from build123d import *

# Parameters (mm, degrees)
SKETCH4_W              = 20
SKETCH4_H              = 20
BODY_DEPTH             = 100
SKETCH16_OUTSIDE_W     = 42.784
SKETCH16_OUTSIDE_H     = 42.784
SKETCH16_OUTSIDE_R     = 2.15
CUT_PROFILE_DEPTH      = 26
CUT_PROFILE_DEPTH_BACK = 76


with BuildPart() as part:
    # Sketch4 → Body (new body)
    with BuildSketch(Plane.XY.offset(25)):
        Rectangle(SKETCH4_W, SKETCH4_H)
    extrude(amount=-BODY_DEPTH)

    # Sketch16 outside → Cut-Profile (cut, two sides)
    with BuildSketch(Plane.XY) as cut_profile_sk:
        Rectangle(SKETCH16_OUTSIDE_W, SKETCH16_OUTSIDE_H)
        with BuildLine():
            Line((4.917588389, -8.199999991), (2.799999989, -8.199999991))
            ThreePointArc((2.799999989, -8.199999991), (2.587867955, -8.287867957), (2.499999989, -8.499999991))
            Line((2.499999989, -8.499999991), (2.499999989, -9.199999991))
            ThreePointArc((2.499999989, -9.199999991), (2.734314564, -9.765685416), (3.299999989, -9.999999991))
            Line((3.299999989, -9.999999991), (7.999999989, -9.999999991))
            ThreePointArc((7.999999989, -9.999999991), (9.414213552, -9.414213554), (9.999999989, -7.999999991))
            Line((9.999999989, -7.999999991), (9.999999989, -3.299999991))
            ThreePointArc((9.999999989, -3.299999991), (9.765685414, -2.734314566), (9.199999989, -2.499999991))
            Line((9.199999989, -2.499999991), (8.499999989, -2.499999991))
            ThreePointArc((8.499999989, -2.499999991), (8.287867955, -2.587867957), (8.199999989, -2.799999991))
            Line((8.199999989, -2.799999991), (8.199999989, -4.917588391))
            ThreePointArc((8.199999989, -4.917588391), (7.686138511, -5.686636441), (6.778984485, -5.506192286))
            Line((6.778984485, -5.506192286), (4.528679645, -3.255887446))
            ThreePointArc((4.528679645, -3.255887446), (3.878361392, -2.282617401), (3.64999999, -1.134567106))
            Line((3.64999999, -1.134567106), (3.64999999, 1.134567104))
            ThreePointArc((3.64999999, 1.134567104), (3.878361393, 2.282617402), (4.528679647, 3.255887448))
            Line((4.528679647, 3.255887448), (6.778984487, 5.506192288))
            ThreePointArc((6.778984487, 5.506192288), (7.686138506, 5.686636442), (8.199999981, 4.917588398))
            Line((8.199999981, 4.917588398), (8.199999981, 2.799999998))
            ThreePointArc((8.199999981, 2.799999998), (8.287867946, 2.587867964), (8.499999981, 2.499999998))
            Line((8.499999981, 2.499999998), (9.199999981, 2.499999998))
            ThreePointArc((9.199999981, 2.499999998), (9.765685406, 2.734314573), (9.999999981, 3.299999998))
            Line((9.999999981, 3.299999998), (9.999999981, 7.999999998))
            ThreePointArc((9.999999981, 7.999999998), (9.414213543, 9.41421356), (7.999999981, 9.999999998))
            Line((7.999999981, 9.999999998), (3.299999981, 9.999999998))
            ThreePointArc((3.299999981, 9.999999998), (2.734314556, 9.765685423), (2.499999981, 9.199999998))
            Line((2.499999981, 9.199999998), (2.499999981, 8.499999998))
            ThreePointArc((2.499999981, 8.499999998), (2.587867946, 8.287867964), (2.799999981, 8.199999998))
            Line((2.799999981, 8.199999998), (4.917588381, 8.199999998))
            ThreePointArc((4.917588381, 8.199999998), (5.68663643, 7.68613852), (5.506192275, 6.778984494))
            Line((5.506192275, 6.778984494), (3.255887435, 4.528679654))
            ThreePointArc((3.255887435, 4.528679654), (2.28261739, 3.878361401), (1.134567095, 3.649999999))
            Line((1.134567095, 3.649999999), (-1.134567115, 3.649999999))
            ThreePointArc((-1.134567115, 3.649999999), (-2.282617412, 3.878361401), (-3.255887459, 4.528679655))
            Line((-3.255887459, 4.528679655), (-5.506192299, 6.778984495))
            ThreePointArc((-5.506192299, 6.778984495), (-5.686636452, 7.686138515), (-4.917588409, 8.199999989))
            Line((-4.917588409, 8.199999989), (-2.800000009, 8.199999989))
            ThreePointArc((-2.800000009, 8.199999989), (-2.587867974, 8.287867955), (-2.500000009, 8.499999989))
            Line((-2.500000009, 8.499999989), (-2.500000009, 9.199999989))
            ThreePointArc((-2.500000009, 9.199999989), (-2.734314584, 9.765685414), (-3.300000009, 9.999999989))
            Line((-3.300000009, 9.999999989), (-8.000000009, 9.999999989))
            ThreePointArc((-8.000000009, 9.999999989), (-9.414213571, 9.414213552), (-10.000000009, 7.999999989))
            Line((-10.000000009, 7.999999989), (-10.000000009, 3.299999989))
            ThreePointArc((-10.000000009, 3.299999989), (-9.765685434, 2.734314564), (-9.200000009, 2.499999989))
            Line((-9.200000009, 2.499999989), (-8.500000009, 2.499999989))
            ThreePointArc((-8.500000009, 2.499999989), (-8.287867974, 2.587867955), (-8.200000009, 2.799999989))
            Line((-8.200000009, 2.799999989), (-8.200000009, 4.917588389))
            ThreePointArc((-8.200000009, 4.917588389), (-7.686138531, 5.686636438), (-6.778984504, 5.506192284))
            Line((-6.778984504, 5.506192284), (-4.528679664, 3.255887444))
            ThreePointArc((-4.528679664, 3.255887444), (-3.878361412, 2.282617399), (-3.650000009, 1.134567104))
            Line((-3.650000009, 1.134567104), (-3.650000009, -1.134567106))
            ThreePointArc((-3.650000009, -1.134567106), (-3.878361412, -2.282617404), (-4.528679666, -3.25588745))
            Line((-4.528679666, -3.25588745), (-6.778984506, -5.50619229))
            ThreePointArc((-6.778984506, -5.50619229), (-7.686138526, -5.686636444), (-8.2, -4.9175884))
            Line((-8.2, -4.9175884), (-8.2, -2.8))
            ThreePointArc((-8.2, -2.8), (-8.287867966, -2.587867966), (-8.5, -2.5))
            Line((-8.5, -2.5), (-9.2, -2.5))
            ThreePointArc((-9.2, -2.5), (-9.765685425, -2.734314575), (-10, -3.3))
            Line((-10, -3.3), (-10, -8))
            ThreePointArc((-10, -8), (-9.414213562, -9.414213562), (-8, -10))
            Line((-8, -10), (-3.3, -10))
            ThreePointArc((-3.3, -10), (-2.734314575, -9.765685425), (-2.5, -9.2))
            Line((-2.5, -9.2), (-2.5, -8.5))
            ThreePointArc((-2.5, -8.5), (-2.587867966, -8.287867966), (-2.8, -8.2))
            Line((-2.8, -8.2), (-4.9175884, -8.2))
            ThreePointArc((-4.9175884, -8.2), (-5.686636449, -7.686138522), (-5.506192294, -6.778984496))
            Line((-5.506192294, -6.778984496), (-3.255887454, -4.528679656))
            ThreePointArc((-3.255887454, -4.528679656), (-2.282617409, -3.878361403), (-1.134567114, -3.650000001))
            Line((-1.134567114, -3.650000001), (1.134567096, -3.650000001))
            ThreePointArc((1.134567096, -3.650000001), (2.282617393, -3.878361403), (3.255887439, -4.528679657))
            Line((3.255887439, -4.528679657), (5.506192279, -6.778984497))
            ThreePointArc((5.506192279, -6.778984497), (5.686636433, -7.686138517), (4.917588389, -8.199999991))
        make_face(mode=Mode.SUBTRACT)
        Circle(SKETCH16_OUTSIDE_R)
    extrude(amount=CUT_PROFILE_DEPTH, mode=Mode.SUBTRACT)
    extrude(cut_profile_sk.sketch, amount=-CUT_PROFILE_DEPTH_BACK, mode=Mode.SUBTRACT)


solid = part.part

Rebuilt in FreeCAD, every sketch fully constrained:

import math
import FreeCAD as App
import Part
import Sketcher
Q = App.Units.Quantity

doc = App.newDocument("Part")
body = doc.addObject("PartDesign::Body", "Body")

# Sketch on XY plane
sketch1 = body.newObject("Sketcher::SketchObject", "Sketch")
sketch1.AttachmentSupport = (doc.getObject("XY_Plane"), [""])
sketch1.MapMode = "FlatFace"
sketch1.AttachmentOffset = App.Placement(App.Vector(0, 0, 25), App.Rotation())
sketch1.addGeometry(Part.LineSegment(App.Vector(-10, 10, 0), App.Vector(-10, -10, 0)), False)
sketch1.addGeometry(Part.LineSegment(App.Vector(-10, -10, 0), App.Vector(10, -10, 0)), False)
sketch1.addGeometry(Part.LineSegment(App.Vector(10, -10, 0), App.Vector(10, 10, 0)), False)
sketch1.addGeometry(Part.LineSegment(App.Vector(10, 10, 0), App.Vector(-10, 10, 0)), False)
sketch1.addConstraint(Sketcher.Constraint("Coincident", 0, 2, 1, 1))
sketch1.addConstraint(Sketcher.Constraint("Coincident", 1, 2, 2, 1))
sketch1.addConstraint(Sketcher.Constraint("Coincident", 2, 2, 3, 1))
sketch1.addConstraint(Sketcher.Constraint("Coincident", 3, 2, 0, 1))
sketch1.addConstraint(Sketcher.Constraint("Vertical", 0))
sketch1.addConstraint(Sketcher.Constraint("Horizontal", 1))
sketch1.addConstraint(Sketcher.Constraint("Vertical", 2))
sketch1.addConstraint(Sketcher.Constraint("Horizontal", 3))
sketch1.addConstraint(Sketcher.Constraint("Symmetric", 0, 2, 2, 2, -1, 1))
sketch1.addConstraint(Sketcher.Constraint("Equal", 3, 0))
sketch1.addConstraint(Sketcher.Constraint("DistanceX", 1, 1, 1, 2, Q("20 mm")))
pad1 = body.newObject("PartDesign::Pad", "Pad")
pad1.Profile = sketch1
pad1.Length = 100
pad1.Reversed = True

# Sketch on XY plane
sketch2 = body.newObject("Sketcher::SketchObject", "Sketch001")
sketch2.AttachmentSupport = (doc.getObject("XY_Plane"), [""])
sketch2.MapMode = "FlatFace"
sketch2.addGeometry(Part.LineSegment(App.Vector(-21.39, 21.39, 0), App.Vector(-21.39, -21.39, 0)), False)
sketch2.addGeometry(Part.LineSegment(App.Vector(-21.39, -21.39, 0), App.Vector(21.39, -21.39, 0)), False)
sketch2.addGeometry(Part.LineSegment(App.Vector(21.39, -21.39, 0), App.Vector(21.39, 21.39, 0)), False)
sketch2.addGeometry(Part.LineSegment(App.Vector(21.39, 21.39, 0), App.Vector(-21.39, 21.39, 0)), False)
sketch2.addGeometry(Part.LineSegment(App.Vector(2.8, -8.2, 0), App.Vector(4.92, -8.2, 0)), False)
sketch2.addGeometry(Part.ArcOfCircle(Part.Circle(App.Vector(4.92, -7.37, 0), App.Vector(0, 0, 1), 0.83), math.radians(-90), math.radians(45)), False)
sketch2.addGeometry(Part.LineSegment(App.Vector(5.51, -6.78, 0), App.Vector(3.26, -4.53, 0)), False)
sketch2.addGeometry(Part.ArcOfCircle(Part.Circle(App.Vector(1.13, -6.65, 0), App.Vector(0, 0, 1), 3), math.radians(45), math.radians(90)), False)
sketch2.addGeometry(Part.LineSegment(App.Vector(1.13, -3.65, 0), App.Vector(-1.13, -3.65, 0)), False)
sketch2.addGeometry(Part.ArcOfCircle(Part.Circle(App.Vector(-1.13, -6.65, 0), App.Vector(0, 0, 1), 3), math.radians(90), math.radians(135)), False)
sketch2.addGeometry(Part.LineSegment(App.Vector(-3.26, -4.53, 0), App.Vector(-5.51, -6.78, 0)), False)
sketch2.addGeometry(Part.ArcOfCircle(Part.Circle(App.Vector(-4.92, -7.37, 0), App.Vector(0, 0, 1), 0.83), math.radians(135), math.radians(270)), False)
sketch2.addGeometry(Part.LineSegment(App.Vector(-4.92, -8.2, 0), App.Vector(-2.8, -8.2, 0)), False)
sketch2.addGeometry(Part.ArcOfCircle(Part.Circle(App.Vector(-2.8, -8.5, 0), App.Vector(0, 0, 1), 0.3), math.radians(0), math.radians(90)), False)
sketch2.addGeometry(Part.LineSegment(App.Vector(-2.5, -8.5, 0), App.Vector(-2.5, -9.2, 0)), False)
sketch2.addGeometry(Part.ArcOfCircle(Part.Circle(App.Vector(-3.3, -9.2, 0), App.Vector(0, 0, 1), 0.8), math.radians(-90), math.radians(0)), False)
sketch2.addGeometry(Part.LineSegment(App.Vector(-3.3, -10, 0), App.Vector(-8, -10, 0)), False)
sketch2.addGeometry(Part.ArcOfCircle(Part.Circle(App.Vector(-8, -8, 0), App.Vector(0, 0, 1), 2), math.radians(-180), math.radians(-90)), False)
sketch2.addGeometry(Part.LineSegment(App.Vector(-10, -8, 0), App.Vector(-10, -3.3, 0)), False)
sketch2.addGeometry(Part.ArcOfCircle(Part.Circle(App.Vector(-9.2, -3.3, 0), App.Vector(0, 0, 1), 0.8), math.radians(90), math.radians(180)), False)
sketch2.addGeometry(Part.LineSegment(App.Vector(-9.2, -2.5, 0), App.Vector(-8.5, -2.5, 0)), False)
sketch2.addGeometry(Part.ArcOfCircle(Part.Circle(App.Vector(-8.5, -2.8, 0), App.Vector(0, 0, 1), 0.3), math.radians(0), math.radians(90)), False)
sketch2.addGeometry(Part.LineSegment(App.Vector(-8.2, -2.8, 0), App.Vector(-8.2, -4.92, 0)), False)
sketch2.addGeometry(Part.ArcOfCircle(Part.Circle(App.Vector(-7.37, -4.92, 0), App.Vector(0, 0, 1), 0.83), math.radians(180), math.radians(315)), False)
sketch2.addGeometry(Part.LineSegment(App.Vector(-6.78, -5.51, 0), App.Vector(-4.53, -3.26, 0)), False)
sketch2.addGeometry(Part.ArcOfCircle(Part.Circle(App.Vector(-6.65, -1.13, 0), App.Vector(0, 0, 1), 3), math.radians(-45), math.radians(0)), False)
sketch2.addGeometry(Part.LineSegment(App.Vector(-3.65, -1.13, 0), App.Vector(-3.65, 1.13, 0)), False)
sketch2.addGeometry(Part.ArcOfCircle(Part.Circle(App.Vector(-6.65, 1.13, 0), App.Vector(0, 0, 1), 3), math.radians(0), math.radians(45)), False)
sketch2.addGeometry(Part.LineSegment(App.Vector(-4.53, 3.26, 0), App.Vector(-6.78, 5.51, 0)), False)
sketch2.addGeometry(Part.ArcOfCircle(Part.Circle(App.Vector(-7.37, 4.92, 0), App.Vector(0, 0, 1), 0.83), math.radians(45), math.radians(180)), False)
sketch2.addGeometry(Part.LineSegment(App.Vector(-8.2, 4.92, 0), App.Vector(-8.2, 2.8, 0)), False)
sketch2.addGeometry(Part.ArcOfCircle(Part.Circle(App.Vector(-8.5, 2.8, 0), App.Vector(0, 0, 1), 0.3), math.radians(-90), math.radians(0)), False)
sketch2.addGeometry(Part.LineSegment(App.Vector(-8.5, 2.5, 0), App.Vector(-9.2, 2.5, 0)), False)
sketch2.addGeometry(Part.ArcOfCircle(Part.Circle(App.Vector(-9.2, 3.3, 0), App.Vector(0, 0, 1), 0.8), math.radians(180), math.radians(270)), False)
sketch2.addGeometry(Part.LineSegment(App.Vector(-10, 3.3, 0), App.Vector(-10, 8, 0)), False)
sketch2.addGeometry(Part.ArcOfCircle(Part.Circle(App.Vector(-8, 8, 0), App.Vector(0, 0, 1), 2), math.radians(90), math.radians(180)), False)
sketch2.addGeometry(Part.LineSegment(App.Vector(-8, 10, 0), App.Vector(-3.3, 10, 0)), False)
sketch2.addGeometry(Part.ArcOfCircle(Part.Circle(App.Vector(-3.3, 9.2, 0), App.Vector(0, 0, 1), 0.8), math.radians(0), math.radians(90)), False)
sketch2.addGeometry(Part.LineSegment(App.Vector(-2.5, 9.2, 0), App.Vector(-2.5, 8.5, 0)), False)
sketch2.addGeometry(Part.ArcOfCircle(Part.Circle(App.Vector(-2.8, 8.5, 0), App.Vector(0, 0, 1), 0.3), math.radians(-90), math.radians(0)), False)
sketch2.addGeometry(Part.LineSegment(App.Vector(-2.8, 8.2, 0), App.Vector(-4.92, 8.2, 0)), False)
sketch2.addGeometry(Part.ArcOfCircle(Part.Circle(App.Vector(-4.92, 7.37, 0), App.Vector(0, 0, 1), 0.83), math.radians(90), math.radians(225)), False)
sketch2.addGeometry(Part.LineSegment(App.Vector(-5.51, 6.78, 0), App.Vector(-3.26, 4.53, 0)), False)
sketch2.addGeometry(Part.ArcOfCircle(Part.Circle(App.Vector(-1.13, 6.65, 0), App.Vector(0, 0, 1), 3), math.radians(-135), math.radians(-90)), False)
sketch2.addGeometry(Part.LineSegment(App.Vector(-1.13, 3.65, 0), App.Vector(1.13, 3.65, 0)), False)
sketch2.addGeometry(Part.ArcOfCircle(Part.Circle(App.Vector(1.13, 6.65, 0), App.Vector(0, 0, 1), 3), math.radians(-90), math.radians(-45)), False)
sketch2.addGeometry(Part.LineSegment(App.Vector(3.26, 4.53, 0), App.Vector(5.51, 6.78, 0)), False)
sketch2.addGeometry(Part.ArcOfCircle(Part.Circle(App.Vector(4.92, 7.37, 0), App.Vector(0, 0, 1), 0.83), math.radians(-45), math.radians(90)), False)
sketch2.addGeometry(Part.LineSegment(App.Vector(4.92, 8.2, 0), App.Vector(2.8, 8.2, 0)), False)
sketch2.addGeometry(Part.ArcOfCircle(Part.Circle(App.Vector(2.8, 8.5, 0), App.Vector(0, 0, 1), 0.3), math.radians(180), math.radians(270)), False)
sketch2.addGeometry(Part.LineSegment(App.Vector(2.5, 8.5, 0), App.Vector(2.5, 9.2, 0)), False)
sketch2.addGeometry(Part.ArcOfCircle(Part.Circle(App.Vector(3.3, 9.2, 0), App.Vector(0, 0, 1), 0.8), math.radians(90), math.radians(180)), False)
sketch2.addGeometry(Part.LineSegment(App.Vector(3.3, 10, 0), App.Vector(8, 10, 0)), False)
sketch2.addGeometry(Part.ArcOfCircle(Part.Circle(App.Vector(8, 8, 0), App.Vector(0, 0, 1), 2), math.radians(0), math.radians(90)), False)
sketch2.addGeometry(Part.LineSegment(App.Vector(10, 8, 0), App.Vector(10, 3.3, 0)), False)
sketch2.addGeometry(Part.ArcOfCircle(Part.Circle(App.Vector(9.2, 3.3, 0), App.Vector(0, 0, 1), 0.8), math.radians(-90), math.radians(0)), False)
sketch2.addGeometry(Part.LineSegment(App.Vector(9.2, 2.5, 0), App.Vector(8.5, 2.5, 0)), False)
sketch2.addGeometry(Part.ArcOfCircle(Part.Circle(App.Vector(8.5, 2.8, 0), App.Vector(0, 0, 1), 0.3), math.radians(180), math.radians(270)), False)
sketch2.addGeometry(Part.LineSegment(App.Vector(8.2, 2.8, 0), App.Vector(8.2, 4.92, 0)), False)
sketch2.addGeometry(Part.ArcOfCircle(Part.Circle(App.Vector(7.37, 4.92, 0), App.Vector(0, 0, 1), 0.83), math.radians(0), math.radians(135)), False)
sketch2.addGeometry(Part.LineSegment(App.Vector(6.78, 5.51, 0), App.Vector(4.53, 3.26, 0)), False)
sketch2.addGeometry(Part.ArcOfCircle(Part.Circle(App.Vector(6.65, 1.13, 0), App.Vector(0, 0, 1), 3), math.radians(135), math.radians(180)), False)
sketch2.addGeometry(Part.LineSegment(App.Vector(3.65, 1.13, 0), App.Vector(3.65, -1.13, 0)), False)
sketch2.addGeometry(Part.ArcOfCircle(Part.Circle(App.Vector(6.65, -1.13, 0), App.Vector(0, 0, 1), 3), math.radians(180), math.radians(225)), False)
sketch2.addGeometry(Part.LineSegment(App.Vector(4.53, -3.26, 0), App.Vector(6.78, -5.51, 0)), False)
sketch2.addGeometry(Part.ArcOfCircle(Part.Circle(App.Vector(7.37, -4.92, 0), App.Vector(0, 0, 1), 0.83), math.radians(-135), math.radians(0)), False)
sketch2.addGeometry(Part.LineSegment(App.Vector(8.2, -4.92, 0), App.Vector(8.2, -2.8, 0)), False)
sketch2.addGeometry(Part.ArcOfCircle(Part.Circle(App.Vector(8.5, -2.8, 0), App.Vector(0, 0, 1), 0.3), math.radians(90), math.radians(180)), False)
sketch2.addGeometry(Part.LineSegment(App.Vector(8.5, -2.5, 0), App.Vector(9.2, -2.5, 0)), False)
sketch2.addGeometry(Part.ArcOfCircle(Part.Circle(App.Vector(9.2, -3.3, 0), App.Vector(0, 0, 1), 0.8), math.radians(0), math.radians(90)), False)
sketch2.addGeometry(Part.LineSegment(App.Vector(10, -3.3, 0), App.Vector(10, -8, 0)), False)
sketch2.addGeometry(Part.ArcOfCircle(Part.Circle(App.Vector(8, -8, 0), App.Vector(0, 0, 1), 2), math.radians(-90), math.radians(0)), False)
sketch2.addGeometry(Part.LineSegment(App.Vector(8, -10, 0), App.Vector(3.3, -10, 0)), False)
sketch2.addGeometry(Part.ArcOfCircle(Part.Circle(App.Vector(3.3, -9.2, 0), App.Vector(0, 0, 1), 0.8), math.radians(180), math.radians(270)), False)
sketch2.addGeometry(Part.LineSegment(App.Vector(2.5, -9.2, 0), App.Vector(2.5, -8.5, 0)), False)
sketch2.addGeometry(Part.ArcOfCircle(Part.Circle(App.Vector(2.8, -8.5, 0), App.Vector(0, 0, 1), 0.3), math.radians(90), math.radians(180)), False)
sketch2.addGeometry(Part.Circle(App.Vector(0, 0, 0), App.Vector(0, 0, 1), 2.15), False)
sketch2.addConstraint(Sketcher.Constraint("Coincident", 0, 2, 1, 1))
sketch2.addConstraint(Sketcher.Constraint("Coincident", 1, 2, 2, 1))
sketch2.addConstraint(Sketcher.Constraint("Coincident", 2, 2, 3, 1))
sketch2.addConstraint(Sketcher.Constraint("Coincident", 3, 2, 0, 1))
sketch2.addConstraint(Sketcher.Constraint("Tangent", 4, 2, 5, 1))
sketch2.addConstraint(Sketcher.Constraint("Tangent", 5, 2, 6, 1))
sketch2.addConstraint(Sketcher.Constraint("Tangent", 6, 2, 7, 1))
sketch2.addConstraint(Sketcher.Constraint("Tangent", 7, 2, 8, 1))
sketch2.addConstraint(Sketcher.Constraint("Tangent", 8, 2, 9, 1))
sketch2.addConstraint(Sketcher.Constraint("Tangent", 9, 2, 10, 1))
sketch2.addConstraint(Sketcher.Constraint("Tangent", 10, 2, 11, 1))
sketch2.addConstraint(Sketcher.Constraint("Tangent", 11, 2, 12, 1))
sketch2.addConstraint(Sketcher.Constraint("Tangent", 12, 2, 13, 2))
sketch2.addConstraint(Sketcher.Constraint("Tangent", 13, 1, 14, 1))
sketch2.addConstraint(Sketcher.Constraint("Tangent", 14, 2, 15, 2))
sketch2.addConstraint(Sketcher.Constraint("Tangent", 15, 1, 16, 1))
sketch2.addConstraint(Sketcher.Constraint("Tangent", 16, 2, 17, 2))
sketch2.addConstraint(Sketcher.Constraint("Tangent", 17, 1, 18, 1))
sketch2.addConstraint(Sketcher.Constraint("Tangent", 18, 2, 19, 2))
sketch2.addConstraint(Sketcher.Constraint("Tangent", 19, 1, 20, 1))
sketch2.addConstraint(Sketcher.Constraint("Tangent", 20, 2, 21, 2))
sketch2.addConstraint(Sketcher.Constraint("Tangent", 21, 1, 22, 1))
sketch2.addConstraint(Sketcher.Constraint("Tangent", 22, 2, 23, 1))
sketch2.addConstraint(Sketcher.Constraint("Tangent", 23, 2, 24, 1))
sketch2.addConstraint(Sketcher.Constraint("Tangent", 24, 2, 25, 1))
sketch2.addConstraint(Sketcher.Constraint("Tangent", 25, 2, 26, 1))
sketch2.addConstraint(Sketcher.Constraint("Tangent", 26, 2, 27, 1))
sketch2.addConstraint(Sketcher.Constraint("Tangent", 27, 2, 28, 1))
sketch2.addConstraint(Sketcher.Constraint("Tangent", 28, 2, 29, 1))
sketch2.addConstraint(Sketcher.Constraint("Tangent", 29, 2, 30, 1))
sketch2.addConstraint(Sketcher.Constraint("Tangent", 30, 2, 31, 2))
sketch2.addConstraint(Sketcher.Constraint("Tangent", 31, 1, 32, 1))
sketch2.addConstraint(Sketcher.Constraint("Tangent", 32, 2, 33, 2))
sketch2.addConstraint(Sketcher.Constraint("Tangent", 33, 1, 34, 1))
sketch2.addConstraint(Sketcher.Constraint("Tangent", 34, 2, 35, 2))
sketch2.addConstraint(Sketcher.Constraint("Tangent", 35, 1, 36, 1))
sketch2.addConstraint(Sketcher.Constraint("Tangent", 36, 2, 37, 2))
sketch2.addConstraint(Sketcher.Constraint("Tangent", 37, 1, 38, 1))
sketch2.addConstraint(Sketcher.Constraint("Tangent", 38, 2, 39, 2))
sketch2.addConstraint(Sketcher.Constraint("Tangent", 39, 1, 40, 1))
sketch2.addConstraint(Sketcher.Constraint("Tangent", 40, 2, 41, 1))
sketch2.addConstraint(Sketcher.Constraint("Tangent", 41, 2, 42, 1))
sketch2.addConstraint(Sketcher.Constraint("Tangent", 42, 2, 43, 1))
sketch2.addConstraint(Sketcher.Constraint("Tangent", 43, 2, 44, 1))
sketch2.addConstraint(Sketcher.Constraint("Tangent", 44, 2, 45, 1))
sketch2.addConstraint(Sketcher.Constraint("Tangent", 45, 2, 46, 1))
sketch2.addConstraint(Sketcher.Constraint("Tangent", 46, 2, 47, 1))
sketch2.addConstraint(Sketcher.Constraint("Tangent", 47, 2, 48, 1))
sketch2.addConstraint(Sketcher.Constraint("Tangent", 48, 2, 49, 2))
sketch2.addConstraint(Sketcher.Constraint("Tangent", 49, 1, 50, 1))
sketch2.addConstraint(Sketcher.Constraint("Tangent", 50, 2, 51, 2))
sketch2.addConstraint(Sketcher.Constraint("Tangent", 51, 1, 52, 1))
sketch2.addConstraint(Sketcher.Constraint("Tangent", 52, 2, 53, 2))
sketch2.addConstraint(Sketcher.Constraint("Tangent", 53, 1, 54, 1))
sketch2.addConstraint(Sketcher.Constraint("Tangent", 54, 2, 55, 2))
sketch2.addConstraint(Sketcher.Constraint("Tangent", 55, 1, 56, 1))
sketch2.addConstraint(Sketcher.Constraint("Tangent", 56, 2, 57, 2))
sketch2.addConstraint(Sketcher.Constraint("Tangent", 57, 1, 58, 1))
sketch2.addConstraint(Sketcher.Constraint("Tangent", 58, 2, 59, 1))
sketch2.addConstraint(Sketcher.Constraint("Tangent", 59, 2, 60, 1))
sketch2.addConstraint(Sketcher.Constraint("Tangent", 60, 2, 61, 1))
sketch2.addConstraint(Sketcher.Constraint("Tangent", 61, 2, 62, 1))
sketch2.addConstraint(Sketcher.Constraint("Tangent", 62, 2, 63, 1))
sketch2.addConstraint(Sketcher.Constraint("Tangent", 63, 2, 64, 1))
sketch2.addConstraint(Sketcher.Constraint("Tangent", 64, 2, 65, 1))
sketch2.addConstraint(Sketcher.Constraint("Tangent", 65, 2, 66, 1))
sketch2.addConstraint(Sketcher.Constraint("Tangent", 66, 2, 67, 2))
sketch2.addConstraint(Sketcher.Constraint("Tangent", 67, 1, 68, 1))
sketch2.addConstraint(Sketcher.Constraint("Tangent", 68, 2, 69, 2))
sketch2.addConstraint(Sketcher.Constraint("Tangent", 69, 1, 70, 1))
sketch2.addConstraint(Sketcher.Constraint("Tangent", 70, 2, 71, 2))
sketch2.addConstraint(Sketcher.Constraint("Tangent", 71, 1, 72, 1))
sketch2.addConstraint(Sketcher.Constraint("Tangent", 72, 2, 73, 2))
sketch2.addConstraint(Sketcher.Constraint("Tangent", 73, 1, 74, 1))
sketch2.addConstraint(Sketcher.Constraint("Tangent", 74, 2, 75, 2))
sketch2.addConstraint(Sketcher.Constraint("Tangent", 75, 1, 4, 1))
sketch2.addConstraint(Sketcher.Constraint("Vertical", 0))
sketch2.addConstraint(Sketcher.Constraint("Horizontal", 1))
sketch2.addConstraint(Sketcher.Constraint("Vertical", 2))
sketch2.addConstraint(Sketcher.Constraint("Horizontal", 3))
sketch2.addConstraint(Sketcher.Constraint("Horizontal", 4))
sketch2.addConstraint(Sketcher.Constraint("Horizontal", 8))
sketch2.addConstraint(Sketcher.Constraint("Horizontal", 12))
sketch2.addConstraint(Sketcher.Constraint("Vertical", 14))
sketch2.addConstraint(Sketcher.Constraint("Horizontal", 16))
sketch2.addConstraint(Sketcher.Constraint("Vertical", 18))
sketch2.addConstraint(Sketcher.Constraint("Horizontal", 20))
sketch2.addConstraint(Sketcher.Constraint("Vertical", 22))
sketch2.addConstraint(Sketcher.Constraint("Vertical", 26))
sketch2.addConstraint(Sketcher.Constraint("Vertical", 30))
sketch2.addConstraint(Sketcher.Constraint("Horizontal", 32))
sketch2.addConstraint(Sketcher.Constraint("Vertical", 34))
sketch2.addConstraint(Sketcher.Constraint("Horizontal", 36))
sketch2.addConstraint(Sketcher.Constraint("Vertical", 38))
sketch2.addConstraint(Sketcher.Constraint("Horizontal", 40))
sketch2.addConstraint(Sketcher.Constraint("Horizontal", 44))
sketch2.addConstraint(Sketcher.Constraint("Horizontal", 48))
sketch2.addConstraint(Sketcher.Constraint("Vertical", 50))
sketch2.addConstraint(Sketcher.Constraint("Horizontal", 52))
sketch2.addConstraint(Sketcher.Constraint("Vertical", 54))
sketch2.addConstraint(Sketcher.Constraint("Horizontal", 56))
sketch2.addConstraint(Sketcher.Constraint("Vertical", 58))
sketch2.addConstraint(Sketcher.Constraint("Vertical", 62))
sketch2.addConstraint(Sketcher.Constraint("Vertical", 66))
sketch2.addConstraint(Sketcher.Constraint("Horizontal", 68))
sketch2.addConstraint(Sketcher.Constraint("Vertical", 70))
sketch2.addConstraint(Sketcher.Constraint("Horizontal", 72))
sketch2.addConstraint(Sketcher.Constraint("Vertical", 74))
sketch2.addConstraint(Sketcher.Constraint("Coincident", 76, 3, -1, 1))
sketch2.addConstraint(Sketcher.Constraint("Equal", 7, 9))
sketch2.addConstraint(Sketcher.Constraint("Equal", 5, 11))
sketch2.addConstraint(Sketcher.Constraint("Equal", 15, 19))
sketch2.addConstraint(Sketcher.Constraint("Equal", 13, 21))
sketch2.addConstraint(Sketcher.Constraint("Equal", 11, 23))
sketch2.addConstraint(Sketcher.Constraint("Equal", 9, 25))
sketch2.addConstraint(Sketcher.Constraint("Equal", 25, 27))
sketch2.addConstraint(Sketcher.Constraint("Equal", 23, 29))
sketch2.addConstraint(Sketcher.Constraint("Equal", 21, 31))
sketch2.addConstraint(Sketcher.Constraint("Equal", 19, 33))
sketch2.addConstraint(Sketcher.Constraint("Equal", 17, 35))
sketch2.addConstraint(Sketcher.Constraint("Equal", 33, 37))
sketch2.addConstraint(Sketcher.Constraint("Equal", 31, 39))
sketch2.addConstraint(Sketcher.Constraint("Equal", 29, 41))
sketch2.addConstraint(Sketcher.Constraint("Equal", 27, 43))
sketch2.addConstraint(Sketcher.Constraint("Equal", 43, 45))
sketch2.addConstraint(Sketcher.Constraint("Equal", 41, 47))
sketch2.addConstraint(Sketcher.Constraint("Equal", 39, 49))
sketch2.addConstraint(Sketcher.Constraint("Equal", 37, 51))
sketch2.addConstraint(Sketcher.Constraint("Equal", 35, 53))
sketch2.addConstraint(Sketcher.Constraint("Equal", 51, 55))
sketch2.addConstraint(Sketcher.Constraint("Equal", 49, 57))
sketch2.addConstraint(Sketcher.Constraint("Equal", 47, 59))
sketch2.addConstraint(Sketcher.Constraint("Equal", 45, 61))
sketch2.addConstraint(Sketcher.Constraint("Equal", 61, 63))
sketch2.addConstraint(Sketcher.Constraint("Equal", 59, 65))
sketch2.addConstraint(Sketcher.Constraint("Equal", 57, 67))
sketch2.addConstraint(Sketcher.Constraint("Equal", 55, 69))
sketch2.addConstraint(Sketcher.Constraint("Equal", 53, 71))
sketch2.addConstraint(Sketcher.Constraint("Equal", 69, 73))
sketch2.addConstraint(Sketcher.Constraint("Equal", 67, 75))
sketch2.addConstraint(Sketcher.Constraint("Symmetric", 5, 3, 41, 3, -1, 1))
sketch2.addConstraint(Sketcher.Constraint("Symmetric", 7, 3, 43, 3, -1, 1))
sketch2.addConstraint(Sketcher.Constraint("Symmetric", 11, 3, 47, 3, -1, 1))
sketch2.addConstraint(Sketcher.Constraint("Symmetric", 15, 3, 51, 3, -1, 1))
sketch2.addConstraint(Sketcher.Constraint("Symmetric", 19, 3, 55, 3, -1, 1))
sketch2.addConstraint(Sketcher.Constraint("Symmetric", 23, 3, 59, 3, -1, 1))
sketch2.addConstraint(Sketcher.Constraint("Symmetric", 25, 3, 61, 3, -1, 1))
sketch2.addConstraint(Sketcher.Constraint("Symmetric", 29, 3, 65, 3, -1, 1))
sketch2.addConstraint(Sketcher.Constraint("Symmetric", 33, 3, 69, 3, -1, 1))
sketch2.addConstraint(Sketcher.Constraint("Symmetric", 37, 3, 73, 3, -1, 1))
sketch2.addConstraint(Sketcher.Constraint("Symmetric", 0, 2, 2, 2, -1, 1))
sketch2.addConstraint(Sketcher.Constraint("Symmetric", 5, 3, 11, 3, -2))
sketch2.addConstraint(Sketcher.Constraint("Symmetric", 37, 3, 51, 3, -2))
sketch2.addConstraint(Sketcher.Constraint("Symmetric", 33, 3, 55, 3, -2))
sketch2.addConstraint(Sketcher.Constraint("Symmetric", 29, 3, 59, 3, -2))
sketch2.addConstraint(Sketcher.Constraint("Perpendicular", 6, 10))
sketch2.addConstraint(Sketcher.Constraint("Parallel", 10, 24))
sketch2.addConstraint(Sketcher.Constraint("Perpendicular", 24, 28))
sketch2.addConstraint(Sketcher.Constraint("Perpendicular", 42, 46))
sketch2.addConstraint(Sketcher.Constraint("Perpendicular", 60, 64))
sketch2.addConstraint(Sketcher.Constraint("Horizontal", 27, 3, 61, 3))
sketch2.addConstraint(Sketcher.Constraint("Equal", 3, 0))
sketch2.addConstraint(Sketcher.Constraint("Equal", 68, 14))
sketch2.addConstraint(Sketcher.Constraint("Equal", 72, 18))
sketch2.addConstraint(Sketcher.Constraint("Equal", 48, 22))
sketch2.addConstraint(Sketcher.Constraint("Equal", 44, 26))
sketch2.addConstraint(Sketcher.Constraint("Equal", 10, 24))
sketch2.addConstraint(Sketcher.Constraint("Radius", 7, Q("3 mm")))
sketch2.addConstraint(Sketcher.Constraint("Radius", 17, Q("2 mm")))
sketch2.addConstraint(Sketcher.Constraint("Diameter", 76, Q("4.3 mm")))
sketch2.addConstraint(Sketcher.Constraint("Radius", 13, Q("0.3 mm")))
sketch2.addConstraint(Sketcher.Constraint("Radius", 15, Q("0.8 mm")))
sketch2.addConstraint(Sketcher.Constraint("DistanceX", 16, 2, 16, 1, Q("4.7 mm")))
sketch2.addConstraint(Sketcher.Constraint("DistanceX", 20, 1, 20, 2, Q("0.7 mm")))
sketch2.addConstraint(Sketcher.Constraint("DistanceX", 17, 3, -1, 1, Q("8 mm")))
sketch2.addConstraint(Sketcher.Constraint("DistanceX", 1, 1, 1, 2, Q("42.784 mm")))
sketch2.addConstraint(Sketcher.Constraint("DistanceY", 7, 3, -1, 1, Q("6.65 mm")))
sketch2.addConstraint(Sketcher.Constraint("Radius", 5, Q("0.832412 mm")))
sketch2.addConstraint(Sketcher.Constraint("DistanceX", 4, 1, 4, 2, Q("2.117588 mm")))
pocket1 = body.newObject("PartDesign::Pocket", "Pocket")
pocket1.Profile = sketch2
pocket1.Type = "ThroughAll"
pocket1.Midplane = True

doc.recompute()
